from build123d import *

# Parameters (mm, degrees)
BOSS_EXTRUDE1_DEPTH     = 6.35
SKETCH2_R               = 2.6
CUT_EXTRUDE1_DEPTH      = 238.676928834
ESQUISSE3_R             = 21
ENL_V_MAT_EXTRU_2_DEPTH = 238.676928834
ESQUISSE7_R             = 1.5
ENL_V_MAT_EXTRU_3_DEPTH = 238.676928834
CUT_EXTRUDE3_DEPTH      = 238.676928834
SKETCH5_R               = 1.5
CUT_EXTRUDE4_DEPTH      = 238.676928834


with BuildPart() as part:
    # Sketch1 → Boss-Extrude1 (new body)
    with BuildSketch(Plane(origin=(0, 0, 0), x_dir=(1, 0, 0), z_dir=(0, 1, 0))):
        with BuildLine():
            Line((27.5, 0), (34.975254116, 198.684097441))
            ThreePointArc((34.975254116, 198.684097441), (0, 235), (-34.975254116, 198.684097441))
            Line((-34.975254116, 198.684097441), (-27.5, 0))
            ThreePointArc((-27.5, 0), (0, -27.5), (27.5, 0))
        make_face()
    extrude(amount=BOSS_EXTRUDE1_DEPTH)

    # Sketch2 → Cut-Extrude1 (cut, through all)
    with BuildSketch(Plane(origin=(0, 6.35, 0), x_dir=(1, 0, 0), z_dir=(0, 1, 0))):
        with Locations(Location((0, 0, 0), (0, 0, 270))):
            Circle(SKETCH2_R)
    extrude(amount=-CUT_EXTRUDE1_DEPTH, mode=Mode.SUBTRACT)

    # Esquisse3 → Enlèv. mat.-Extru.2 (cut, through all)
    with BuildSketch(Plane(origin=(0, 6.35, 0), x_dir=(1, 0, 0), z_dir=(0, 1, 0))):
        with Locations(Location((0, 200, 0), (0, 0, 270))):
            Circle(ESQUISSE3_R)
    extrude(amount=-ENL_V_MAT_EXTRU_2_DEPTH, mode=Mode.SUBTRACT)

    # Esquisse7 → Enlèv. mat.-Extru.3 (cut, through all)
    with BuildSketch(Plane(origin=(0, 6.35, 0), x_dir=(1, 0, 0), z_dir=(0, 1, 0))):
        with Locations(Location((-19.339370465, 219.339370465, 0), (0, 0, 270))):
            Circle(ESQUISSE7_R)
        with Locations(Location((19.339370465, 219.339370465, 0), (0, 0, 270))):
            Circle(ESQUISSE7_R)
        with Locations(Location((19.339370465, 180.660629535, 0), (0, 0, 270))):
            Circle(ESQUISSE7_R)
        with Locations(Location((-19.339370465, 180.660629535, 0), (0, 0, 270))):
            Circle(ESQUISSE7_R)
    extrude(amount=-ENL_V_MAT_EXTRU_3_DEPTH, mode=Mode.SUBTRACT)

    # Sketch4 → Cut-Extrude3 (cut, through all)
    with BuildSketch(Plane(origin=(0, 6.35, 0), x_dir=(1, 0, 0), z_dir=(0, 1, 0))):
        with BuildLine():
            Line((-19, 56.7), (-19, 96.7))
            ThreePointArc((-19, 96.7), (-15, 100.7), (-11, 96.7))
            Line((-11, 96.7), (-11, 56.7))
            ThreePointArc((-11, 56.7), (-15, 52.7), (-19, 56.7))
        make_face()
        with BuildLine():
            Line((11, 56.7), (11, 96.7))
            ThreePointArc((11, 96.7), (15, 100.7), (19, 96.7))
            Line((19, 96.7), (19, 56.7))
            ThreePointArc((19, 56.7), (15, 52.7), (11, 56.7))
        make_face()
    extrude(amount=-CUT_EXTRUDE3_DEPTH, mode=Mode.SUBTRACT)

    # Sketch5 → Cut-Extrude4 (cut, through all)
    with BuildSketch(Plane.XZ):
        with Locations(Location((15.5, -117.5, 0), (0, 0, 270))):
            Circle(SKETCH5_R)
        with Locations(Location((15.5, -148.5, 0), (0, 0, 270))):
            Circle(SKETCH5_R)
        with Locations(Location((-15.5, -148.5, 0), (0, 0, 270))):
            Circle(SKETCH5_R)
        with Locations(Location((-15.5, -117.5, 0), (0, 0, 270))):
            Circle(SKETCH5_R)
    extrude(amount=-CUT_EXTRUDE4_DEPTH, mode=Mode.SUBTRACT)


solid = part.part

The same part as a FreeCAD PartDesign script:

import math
import FreeCAD as App
import Part
import Sketcher

doc = App.newDocument("Part")
params = doc.addObject("Spreadsheet::Sheet", "Params")
for row, (alias, value) in enumerate([
    ("sketch1_radius", "35 mm"),
    ("sketch1_radius2", "27.5 mm"),
    ("pad1_length", "6.35 mm"),
    ("sketch2_diameter", "5.2 mm"),
    ("sketch3_diameter", "42 mm"),
    ("sketch4_diameter", "3 mm"),
    ("sketch5_radius", "4 mm"),
    ("sketch5_height", "40 mm"),
    ("sketch6_diameter", "3 mm"),
], start=1):
    params.set(f"A{row}", alias)
    params.set(f"B{row}", "=" + value)
    params.setAlias(f"B{row}", alias)

body = doc.addObject("PartDesign::Body", "Body")

# Sketch on XZ plane
sketch1 = body.newObject("Sketcher::SketchObject", "Sketch")
sketch1.AttachmentSupport = (doc.getObject("XZ_Plane"), [""])
sketch1.MapMode = "FlatFace"
sketch1.addGeometry([
    Part.LineSegment(App.Vector(27.5, 0, 0), App.Vector(34.975254, -198.684097, 0)),
    Part.ArcOfCircle(Part.Circle(App.Vector(0, -200, 0), App.Vector(0, 0, 1), 35), math.radians(177.84533), math.radians(362.15467)),
    Part.LineSegment(App.Vector(-34.975254, -198.684097, 0), App.Vector(-27.5, 0, 0)),
    Part.ArcOfCircle(Part.Circle(App.Vector(0, 0, 0), App.Vector(0, 0, 1), 27.5), math.radians(0), math.radians(180)),
], False)
sketch1.addConstraint([
    Sketcher.Constraint("Tangent", 0, 2, 1, 2),
    Sketcher.Constraint("Tangent", 1, 1, 2, 1),
    Sketcher.Constraint("Coincident", 2, 2, 3, 2),
    Sketcher.Constraint("Coincident", 3, 1, 0, 1),
    Sketcher.Constraint("Coincident", 3, 3, -1, 1),
    Sketcher.Constraint("PointOnObject", 1, 3, -2),
    Sketcher.Constraint("PointOnObject", 2, 2, -1),
    Sketcher.Constraint("PointOnObject", 3, 1, -1),
    Sketcher.Constraint("Radius", 1, 35.0),
    Sketcher.Constraint("Radius", 3, 27.5),
    Sketcher.Constraint("DistanceY", 1, 3, -1, 1, 200.0),
])
sketch1.setExpression("Constraints[8]", "Params.sketch1_radius")
sketch1.setExpression("Constraints[9]", "Params.sketch1_radius2")
pad1 = body.newObject("PartDesign::Pad", "Pad")
pad1.Profile = sketch1
pad1.setExpression("Length", "Params.pad1_length")
pad1.Reversed = True

# Sketch on XZ plane
sketch2 = body.newObject("Sketcher::SketchObject", "Sketch001")
sketch2.AttachmentSupport = (doc.getObject("XZ_Plane"), [""])
sketch2.MapMode = "FlatFace"
sketch2.AttachmentOffset = App.Placement(App.Vector(0, 0, -6.35), App.Rotation())
sketch2.addGeometry(Part.Circle(App.Vector(0, 0, 0), App.Vector(0, 0, 1), 2.6), False)
sketch2.addConstraint([
    Sketcher.Constraint("Coincident", 0, 3, -1, 1),
    Sketcher.Constraint("Diameter", 0, 5.2),
])
sketch2.setExpression("Constraints[1]", "Params.sketch2_diameter")
pocket1 = body.newObject("PartDesign::Pocket", "Pocket")
pocket1.Profile = sketch2
pocket1.Type = "ThroughAll"
pocket1.Reversed = True

# Sketch on XZ plane
sketch3 = body.newObject("Sketcher::SketchObject", "Sketch002")
sketch3.AttachmentSupport = (doc.getObject("XZ_Plane"), [""])
sketch3.MapMode = "FlatFace"
sketch3.AttachmentOffset = App.Placement(App.Vector(0, 0, -6.35), App.Rotation())
sketch3.addGeometry(Part.Circle(App.Vector(0, -200, 0), App.Vector(0, 0, 1), 21), False)
sketch3.addConstraint([
    Sketcher.Constraint("PointOnObject", 0, 3, -2),
    Sketcher.Constraint("Diameter", 0, 42.0),
    Sketcher.Constraint("DistanceY", 0, 3, -1, 1, 200.0),
])
sketch3.setExpression("Constraints[1]", "Params.sketch3_diameter")
pocket2 = body.newObject("PartDesign::Pocket", "Pocket001")
pocket2.Profile = sketch3
pocket2.Type = "ThroughAll"
pocket2.Reversed = True

# Sketch on XZ plane
sketch4 = body.newObject("Sketcher::SketchObject", "Sketch003")
sketch4.AttachmentSupport = (doc.getObject("XZ_Plane"), [""])
sketch4.MapMode = "FlatFace"
sketch4.AttachmentOffset = App.Placement(App.Vector(0, 0, -6.35), App.Rotation())
sketch4.addGeometry([
    Part.Circle(App.Vector(-19.33937, -219.33937, 0), App.Vector(0, 0, 1), 1.5),
    Part.Circle(App.Vector(19.33937, -219.33937, 0), App.Vector(0, 0, 1), 1.5),
    Part.Circle(App.Vector(19.33937, -180.66063, 0), App.Vector(0, 0, 1), 1.5),
    Part.Circle(App.Vector(-19.33937, -180.66063, 0), App.Vector(0, 0, 1), 1.5),
], False)
sketch4.addConstraint([
    Sketcher.Constraint("Equal", 0, 1),
    Sketcher.Constraint("Equal", 1, 2),
    Sketcher.Constraint("Equal", 2, 3),
    Sketcher.Constraint("Symmetric", 0, 3, 1, 3, -2),
    Sketcher.Constraint("Symmetric", 2, 3, 3, 3, -2),
    Sketcher.Constraint("Vertical", 1, 3, 2, 3),
    Sketcher.Constraint("Diameter", 0, 3.0),
    Sketcher.Constraint("DistanceX", 0, 3, -1, 1, 19.33937),
    Sketcher.Constraint("DistanceY", 0, 3, -1, 1, 219.33937),
    Sketcher.Constraint("DistanceY", 2, 3, -1, 1, 180.66063),
])
sketch4.setExpression("Constraints[6]", "Params.sketch4_diameter")
pocket3 = body.newObject("PartDesign::Pocket", "Pocket002")
pocket3.Profile = sketch4
pocket3.Type = "ThroughAll"
pocket3.Reversed = True

# Sketch on XZ plane
sketch5 = body.newObject("Sketcher::SketchObject", "Sketch004")
sketch5.AttachmentSupport = (doc.getObject("XZ_Plane"), [""])
sketch5.MapMode = "FlatFace"
sketch5.AttachmentOffset = App.Placement(App.Vector(0, 0, -6.35), App.Rotation())
sketch5.addGeometry([
    Part.LineSegment(App.Vector(-19, -96.7, 0), App.Vector(-19, -56.7, 0)),  # 0
    Part.ArcOfCircle(Part.Circle(App.Vector(-15, -56.7, 0), App.Vector(0, 0, 1), 4), math.radians(0), math.radians(180)),  # 1
    Part.LineSegment(App.Vector(-11, -56.7, 0), App.Vector(-11, -96.7, 0)),  # 2
    Part.ArcOfCircle(Part.Circle(App.Vector(-15, -96.7, 0), App.Vector(0, 0, 1), 4), math.radians(180), math.radians(360)),  # 3
    Part.LineSegment(App.Vector(11, -96.7, 0), App.Vector(11, -56.7, 0)),  # 4
    Part.ArcOfCircle(Part.Circle(App.Vector(15, -56.7, 0), App.Vector(0, 0, 1), 4), math.radians(0), math.radians(180)),  # 5
    Part.LineSegment(App.Vector(19, -56.7, 0), App.Vector(19, -96.7, 0)),  # 6
    Part.ArcOfCircle(Part.Circle(App.Vector(15, -96.7, 0), App.Vector(0, 0, 1), 4), math.radians(180), math.radians(360)),  # 7
], False)
sketch5.addConstraint([
    Sketcher.Constraint("Tangent", 0, 2, 1, 2),
    Sketcher.Constraint("Tangent", 1, 1, 2, 1),
    Sketcher.Constraint("Tangent", 2, 2, 3, 2),
    Sketcher.Constraint("Tangent", 3, 1, 0, 1),
    Sketcher.Constraint("Tangent", 4, 2, 5, 2),
    Sketcher.Constraint("Tangent", 5, 1, 6, 1),
    Sketcher.Constraint("Tangent", 6, 2, 7, 2),
    Sketcher.Constraint("Tangent", 7, 1, 4, 1),
    Sketcher.Constraint("Vertical", 0),
    Sketcher.Constraint("Vertical", 2),
    Sketcher.Constraint("Vertical", 4),
    Sketcher.Constraint("Vertical", 6),
    Sketcher.Constraint("Equal", 3, 5),
    Sketcher.Constraint("Symmetric", 1, 3, 5, 3, -2),
    Sketcher.Constraint("Horizontal", 3, 3, 7, 3),
    Sketcher.Constraint("Radius", 1, 4.0),
    Sketcher.Constraint("DistanceY", 0, 1, 0, 2, 40.0),
    Sketcher.Constraint("DistanceX", 1, 3, -1, 1, 15.0),
    Sketcher.Constraint("DistanceY", 1, 3, -1, 1, 56.7),
])
sketch5.setExpression("Constraints[15]", "Params.sketch5_radius")
sketch5.setExpression("Constraints[16]", "Params.sketch5_height")
pocket4 = body.newObject("PartDesign::Pocket", "Pocket003")
pocket4.Profile = sketch5
pocket4.Type = "ThroughAll"
pocket4.Reversed = True

# Sketch on XZ plane
sketch6 = body.newObject("Sketcher::SketchObject", "Sketch005")
sketch6.AttachmentSupport = (doc.getObject("XZ_Plane"), [""])
sketch6.MapMode = "FlatFace"
sketch6.addGeometry([
    Part.Circle(App.Vector(15.5, -117.5, 0), App.Vector(0, 0, 1), 1.5),
    Part.Circle(App.Vector(15.5, -148.5, 0), App.Vector(0, 0, 1), 1.5),
    Part.Circle(App.Vector(-15.5, -148.5, 0), App.Vector(0, 0, 1), 1.5),
    Part.Circle(App.Vector(-15.5, -117.5, 0), App.Vector(0, 0, 1), 1.5),
], False)
sketch6.addConstraint([
    Sketcher.Constraint("Equal", 0, 1),
    Sketcher.Constraint("Equal", 1, 2),
    Sketcher.Constraint("Equal", 2, 3),
    Sketcher.Constraint("Symmetric", 1, 3, 2, 3, -2),
    Sketcher.Constraint("Symmetric", 0, 3, 3, 3, -2),
    Sketcher.Constraint("Vertical", 0, 3, 1, 3),
    Sketcher.Constraint("Diameter", 0, 3.0),
    Sketcher.Constraint("DistanceY", 1, 3, 0, 3, 31.0),
    Sketcher.Constraint("DistanceX", 2, 3, 1, 3, 31.0),
    Sketcher.Constraint("DistanceY", 0, 3, -1, 1, 117.5),
])
sketch6.setExpression("Constraints[6]", "Params.sketch6_diameter")
pocket5 = body.newObject("PartDesign::Pocket", "Pocket004")
pocket5.Profile = sketch6
pocket5.Type = "ThroughAll"

doc.recompute()
